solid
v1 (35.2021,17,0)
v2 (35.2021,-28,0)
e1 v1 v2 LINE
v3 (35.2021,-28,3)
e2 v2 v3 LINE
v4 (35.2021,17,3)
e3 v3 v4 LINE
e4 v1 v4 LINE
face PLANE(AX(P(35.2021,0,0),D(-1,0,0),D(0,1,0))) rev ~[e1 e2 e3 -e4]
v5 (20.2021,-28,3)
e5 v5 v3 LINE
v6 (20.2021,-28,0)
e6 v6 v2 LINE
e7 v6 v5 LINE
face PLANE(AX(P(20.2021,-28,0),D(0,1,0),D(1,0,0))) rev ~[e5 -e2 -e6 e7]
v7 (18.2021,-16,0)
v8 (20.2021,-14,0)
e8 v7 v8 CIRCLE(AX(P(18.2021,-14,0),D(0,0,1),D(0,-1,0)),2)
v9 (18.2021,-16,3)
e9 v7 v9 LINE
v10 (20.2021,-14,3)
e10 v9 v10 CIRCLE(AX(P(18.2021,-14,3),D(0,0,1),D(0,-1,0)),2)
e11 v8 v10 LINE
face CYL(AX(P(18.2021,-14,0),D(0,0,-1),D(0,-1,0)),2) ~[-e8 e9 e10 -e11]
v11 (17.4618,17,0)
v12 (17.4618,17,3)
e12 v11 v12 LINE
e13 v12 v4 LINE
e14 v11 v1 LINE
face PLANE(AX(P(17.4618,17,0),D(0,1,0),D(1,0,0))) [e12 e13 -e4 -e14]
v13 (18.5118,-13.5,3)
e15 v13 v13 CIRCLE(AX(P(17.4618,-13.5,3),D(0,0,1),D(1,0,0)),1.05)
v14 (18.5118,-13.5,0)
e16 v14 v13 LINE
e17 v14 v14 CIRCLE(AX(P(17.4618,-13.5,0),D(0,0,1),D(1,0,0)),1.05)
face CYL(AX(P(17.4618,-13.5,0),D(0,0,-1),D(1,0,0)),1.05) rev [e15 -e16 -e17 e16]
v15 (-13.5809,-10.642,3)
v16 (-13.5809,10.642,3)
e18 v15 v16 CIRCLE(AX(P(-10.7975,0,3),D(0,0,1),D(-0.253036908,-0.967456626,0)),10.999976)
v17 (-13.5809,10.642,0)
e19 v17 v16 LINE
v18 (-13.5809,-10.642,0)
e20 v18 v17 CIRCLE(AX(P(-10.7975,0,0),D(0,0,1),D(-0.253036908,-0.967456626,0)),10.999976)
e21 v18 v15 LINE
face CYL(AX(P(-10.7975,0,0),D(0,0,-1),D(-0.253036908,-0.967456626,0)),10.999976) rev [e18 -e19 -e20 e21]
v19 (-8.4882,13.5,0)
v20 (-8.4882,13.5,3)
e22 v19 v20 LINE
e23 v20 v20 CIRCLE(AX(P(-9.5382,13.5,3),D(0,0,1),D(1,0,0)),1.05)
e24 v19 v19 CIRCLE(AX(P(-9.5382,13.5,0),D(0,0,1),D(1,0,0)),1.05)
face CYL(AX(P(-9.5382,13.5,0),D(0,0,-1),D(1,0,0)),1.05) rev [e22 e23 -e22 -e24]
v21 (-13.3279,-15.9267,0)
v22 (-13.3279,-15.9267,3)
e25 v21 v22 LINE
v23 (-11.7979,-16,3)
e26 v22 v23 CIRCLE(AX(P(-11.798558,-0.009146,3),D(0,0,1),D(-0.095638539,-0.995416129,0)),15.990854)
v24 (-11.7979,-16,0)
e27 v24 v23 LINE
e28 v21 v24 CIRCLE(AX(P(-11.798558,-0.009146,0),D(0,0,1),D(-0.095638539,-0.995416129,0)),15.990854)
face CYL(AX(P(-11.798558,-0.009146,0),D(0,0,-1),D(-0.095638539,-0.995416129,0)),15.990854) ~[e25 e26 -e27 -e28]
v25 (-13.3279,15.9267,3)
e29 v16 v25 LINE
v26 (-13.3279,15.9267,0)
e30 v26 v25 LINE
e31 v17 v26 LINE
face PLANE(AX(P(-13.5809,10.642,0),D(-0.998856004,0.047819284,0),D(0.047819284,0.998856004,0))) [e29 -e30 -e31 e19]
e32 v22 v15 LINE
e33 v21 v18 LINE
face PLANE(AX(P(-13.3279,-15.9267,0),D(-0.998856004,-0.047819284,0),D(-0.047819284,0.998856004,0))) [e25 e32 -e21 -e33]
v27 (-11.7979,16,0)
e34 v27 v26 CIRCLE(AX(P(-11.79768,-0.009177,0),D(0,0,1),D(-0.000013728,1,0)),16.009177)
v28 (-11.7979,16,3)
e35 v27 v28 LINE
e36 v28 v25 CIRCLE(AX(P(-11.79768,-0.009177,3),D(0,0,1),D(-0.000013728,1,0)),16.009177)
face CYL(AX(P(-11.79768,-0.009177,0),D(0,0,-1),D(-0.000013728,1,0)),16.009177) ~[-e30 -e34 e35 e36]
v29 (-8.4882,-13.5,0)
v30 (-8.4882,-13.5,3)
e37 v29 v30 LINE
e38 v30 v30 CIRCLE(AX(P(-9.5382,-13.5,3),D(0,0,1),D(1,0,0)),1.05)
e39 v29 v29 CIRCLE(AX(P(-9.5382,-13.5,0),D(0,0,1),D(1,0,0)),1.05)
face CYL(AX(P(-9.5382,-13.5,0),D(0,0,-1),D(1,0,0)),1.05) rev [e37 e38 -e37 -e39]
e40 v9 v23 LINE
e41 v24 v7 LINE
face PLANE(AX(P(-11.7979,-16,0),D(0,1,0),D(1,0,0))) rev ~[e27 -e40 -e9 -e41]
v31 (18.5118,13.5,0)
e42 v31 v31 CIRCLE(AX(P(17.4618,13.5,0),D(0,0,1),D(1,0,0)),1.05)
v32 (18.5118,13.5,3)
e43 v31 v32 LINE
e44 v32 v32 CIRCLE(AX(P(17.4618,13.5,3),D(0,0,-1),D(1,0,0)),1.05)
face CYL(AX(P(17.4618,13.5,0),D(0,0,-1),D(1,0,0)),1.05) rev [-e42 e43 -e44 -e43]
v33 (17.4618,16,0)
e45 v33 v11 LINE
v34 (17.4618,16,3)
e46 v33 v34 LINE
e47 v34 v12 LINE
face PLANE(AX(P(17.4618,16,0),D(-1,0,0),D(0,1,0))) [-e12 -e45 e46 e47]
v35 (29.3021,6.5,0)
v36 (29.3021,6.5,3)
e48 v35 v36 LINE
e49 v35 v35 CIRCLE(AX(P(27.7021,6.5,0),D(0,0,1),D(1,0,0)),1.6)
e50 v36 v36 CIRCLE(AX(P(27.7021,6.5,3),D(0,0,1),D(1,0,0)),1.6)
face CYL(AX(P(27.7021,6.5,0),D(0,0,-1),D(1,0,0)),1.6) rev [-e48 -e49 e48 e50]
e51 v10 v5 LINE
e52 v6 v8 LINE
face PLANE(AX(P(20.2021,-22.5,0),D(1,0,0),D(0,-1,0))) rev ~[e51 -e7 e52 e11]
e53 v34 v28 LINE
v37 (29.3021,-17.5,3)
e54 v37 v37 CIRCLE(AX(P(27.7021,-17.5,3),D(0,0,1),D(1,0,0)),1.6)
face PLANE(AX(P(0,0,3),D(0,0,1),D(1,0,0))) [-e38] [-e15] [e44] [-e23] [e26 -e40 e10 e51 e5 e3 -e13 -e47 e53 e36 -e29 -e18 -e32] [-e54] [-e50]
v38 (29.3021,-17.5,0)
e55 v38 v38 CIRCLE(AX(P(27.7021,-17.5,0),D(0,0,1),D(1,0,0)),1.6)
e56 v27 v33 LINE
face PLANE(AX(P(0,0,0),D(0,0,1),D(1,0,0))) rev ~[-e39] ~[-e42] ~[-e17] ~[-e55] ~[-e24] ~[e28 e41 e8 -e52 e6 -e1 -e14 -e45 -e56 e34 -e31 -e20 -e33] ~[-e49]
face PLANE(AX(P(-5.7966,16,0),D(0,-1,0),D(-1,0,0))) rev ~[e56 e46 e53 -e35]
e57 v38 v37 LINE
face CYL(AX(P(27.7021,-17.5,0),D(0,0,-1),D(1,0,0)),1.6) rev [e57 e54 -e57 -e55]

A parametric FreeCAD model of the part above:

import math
import FreeCAD as App
import Part
import Sketcher
Q = App.Units.Quantity

doc = App.newDocument("Part")
body = doc.addObject("PartDesign::Body", "Body")

sketch1 = doc.addObject("Sketcher::SketchObject", "Sketch")
body.addObject(sketch1)
sketch1.AttachmentSupport = (doc.XY_Plane, [""])
sketch1.MapMode = "FlatFace"
sketch1.addGeometry(Part.ArcOfCircle(Part.Circle(App.Vector(-11.798558, -0.009146, 0), App.Vector(0, 0, 1), 15.990854), math.radians(-95.488073), math.radians(-89.997642)), False)
sketch1.addGeometry(Part.LineSegment(App.Vector(-11.7979, -16, 0), App.Vector(18.2021, -16, 0)), False)
sketch1.addGeometry(Part.ArcOfCircle(Part.Circle(App.Vector(18.2021, -14, 0), App.Vector(0, 0, 1), 2), math.radians(-90), math.radians(0)), False)
sketch1.addGeometry(Part.LineSegment(App.Vector(20.2021, -14, 0), App.Vector(20.2021, -28, 0)), False)
sketch1.addGeometry(Part.LineSegment(App.Vector(20.2021, -28, 0), App.Vector(35.2021, -28, 0)), False)
sketch1.addGeometry(Part.LineSegment(App.Vector(35.2021, -28, 0), App.Vector(35.2021, 17, 0)), False)
sketch1.addGeometry(Part.LineSegment(App.Vector(35.2021, 17, 0), App.Vector(17.4618, 17, 0)), False)
sketch1.addGeometry(Part.LineSegment(App.Vector(17.4618, 17, 0), App.Vector(17.4618, 16, 0)), False)
sketch1.addGeometry(Part.LineSegment(App.Vector(17.4618, 16, 0), App.Vector(-11.7979, 16, 0)), False)
sketch1.addGeometry(Part.ArcOfCircle(Part.Circle(App.Vector(-11.79768, -0.009177, 0), App.Vector(0, 0, 1), 16.009177), math.radians(90.000787), math.radians(95.484928)), False)
sketch1.addGeometry(Part.LineSegment(App.Vector(-13.3279, 15.9267, 0), App.Vector(-13.5809, 10.642, 0)), False)
sketch1.addGeometry(Part.ArcOfCircle(Part.Circle(App.Vector(-10.7975, 0, 0), App.Vector(0, 0, 1), 10.999976), math.radians(-104.657294), math.radians(104.657294)), False)
sketch1.addGeometry(Part.LineSegment(App.Vector(-13.5809, -10.642, 0), App.Vector(-13.3279, -15.9267, 0)), False)
sketch1.addGeometry(Part.Circle(App.Vector(-9.5382, -13.5, 0), App.Vector(0, 0, 1), 1.05), False)
sketch1.addGeometry(Part.Circle(App.Vector(17.4618, -13.5, 0), App.Vector(0, 0, 1), 1.05), False)
sketch1.addGeometry(Part.Circle(App.Vector(-9.5382, 13.5, 0), App.Vector(0, 0, 1), 1.05), False)
sketch1.addGeometry(Part.Circle(App.Vector(17.4618, 13.5, 0), App.Vector(0, 0, 1), 1.05), False)
sketch1.addGeometry(Part.Circle(App.Vector(27.7021, 6.5, 0), App.Vector(0, 0, 1), 1.6), False)
sketch1.addGeometry(Part.Circle(App.Vector(27.7021, -17.5, 0), App.Vector(0, 0, 1), 1.6), False)
sketch1.addConstraint(Sketcher.Constraint("Coincident", 0, 2, 1, 1))
sketch1.addConstraint(Sketcher.Constraint("Coincident", 1, 2, 2, 1))
sketch1.addConstraint(Sketcher.Constraint("Coincident", 2, 2, 3, 1))
sketch1.addConstraint(Sketcher.Constraint("Coincident", 3, 2, 4, 1))
sketch1.addConstraint(Sketcher.Constraint("Coincident", 4, 2, 5, 1))
sketch1.addConstraint(Sketcher.Constraint("Coincident", 5, 2, 6, 1))
sketch1.addConstraint(Sketcher.Constraint("Coincident", 6, 2, 7, 1))
sketch1.addConstraint(Sketcher.Constraint("Coincident", 7, 2, 8, 1))
sketch1.addConstraint(Sketcher.Constraint("Coincident", 8, 2, 9, 1))
sketch1.addConstraint(Sketcher.Constraint("Coincident", 9, 2, 10, 1))
sketch1.addConstraint(Sketcher.Constraint("Coincident", 10, 2, 11, 2))
sketch1.addConstraint(Sketcher.Constraint("Coincident", 11, 1, 12, 1))
sketch1.addConstraint(Sketcher.Constraint("Coincident", 12, 2, 0, 1))
sketch1.addConstraint(Sketcher.Constraint("Horizontal", 1))
sketch1.addConstraint(Sketcher.Constraint("Vertical", 3))
sketch1.addConstraint(Sketcher.Constraint("Horizontal", 4))
sketch1.addConstraint(Sketcher.Constraint("Vertical", 5))
sketch1.addConstraint(Sketcher.Constraint("Horizontal", 6))
sketch1.addConstraint(Sketcher.Constraint("Vertical", 7))
sketch1.addConstraint(Sketcher.Constraint("Horizontal", 8))
sketch1.addConstraint(Sketcher.Constraint("PointOnObject", 11, 3, -1))
sketch1.addConstraint(Sketcher.Constraint("Radius", 11, Q("11 mm")))
sketch1.addConstraint(Sketcher.Constraint("Diameter", 17, Q("3.2 mm")))
sketch1.addConstraint(Sketcher.Constraint("Diameter", 18, Q("3.2 mm")))
sketch1.addConstraint(Sketcher.Constraint("DistanceX", 4, 1, 4, 2, Q("15 mm")))
sketch1.addConstraint(Sketcher.Constraint("DistanceY", 5, 1, 5, 2, Q("45 mm")))
sketch1.addConstraint(Sketcher.Constraint("Radius", 2, Q("2 mm")))
sketch1.addConstraint(Sketcher.Constraint("DistanceY", 3, 2, 1, 2, Q("12 mm")))
sketch1.addConstraint(Sketcher.Constraint("Diameter", 13, Q("2.1 mm")))
sketch1.addConstraint(Sketcher.Constraint("Diameter", 14, Q("2.1 mm")))
sketch1.addConstraint(Sketcher.Constraint("Diameter", 15, Q("2.1 mm")))
sketch1.addConstraint(Sketcher.Constraint("Diameter", 16, Q("2.1 mm")))
sketch1.addConstraint(Sketcher.Constraint("DistanceY", 18, 3, 2, 3, Q("3.5 mm")))
sketch1.addConstraint(Sketcher.Constraint("DistanceY", 18, 3, 2, 2, Q("3.5 mm")))
sketch1.addConstraint(Sketcher.Constraint("DistanceY", 16, 3, 5, 2, Q("3.5 mm")))
sketch1.addConstraint(Sketcher.Constraint("DistanceY", 15, 3, 6, 2, Q("3.5 mm")))
sketch1.addConstraint(Sketcher.Constraint("DistanceX", 1, 1, 1, 2, Q("30 mm")))
sketch1.addConstraint(Sketcher.Constraint("DistanceY", 7, 2, 7, 1, Q("1 mm")))
sketch1.addConstraint(Sketcher.Constraint("DistanceY", 2, 3, -1, 1, Q("14 mm")))
sketch1.addConstraint(Sketcher.Constraint("DistanceX", 13, 3, 14, 3, Q("27 mm")))
sketch1.addConstraint(Sketcher.Constraint("DistanceY", 13, 3, 15, 3, Q("27 mm")))
sketch1.addConstraint(Sketcher.Constraint("DistanceX", 15, 3, 14, 3, Q("27 mm")))
sketch1.addConstraint(Sketcher.Constraint("DistanceY", 14, 3, 15, 3, Q("27 mm")))
sketch1.addConstraint(Sketcher.Constraint("DistanceX", 15, 3, 16, 3, Q("27 mm")))
sketch1.addConstraint(Sketcher.Constraint("DistanceY", 17, 3, 16, 3, Q("7 mm")))
sketch1.addConstraint(Sketcher.Constraint("DistanceX", 1, 2, 2, 2, Q("2 mm")))
sketch1.addConstraint(Sketcher.Constraint("DistanceX", 15, 3, 6, 2, Q("27 mm")))
sketch1.addConstraint(Sketcher.Constraint("Radius", 0, Q("15.9909 mm")))
sketch1.addConstraint(Sketcher.Constraint("Radius", 9, Q("16.0092 mm")))
sketch1.addConstraint(Sketcher.Constraint("DistanceX", 2, 3, 17, 3, Q("9.5 mm")))
sketch1.addConstraint(Sketcher.Constraint("DistanceX", 2, 3, 18, 3, Q("9.5 mm")))
sketch1.addConstraint(Sketcher.Constraint("DistanceX", 14, 3, 2, 2, Q("2.7403 mm")))
sketch1.addConstraint(Sketcher.Constraint("DistanceX", 9, 2, 8, 2, Q("1.53 mm")))
sketch1.addConstraint(Sketcher.Constraint("DistanceX", 12, 2, 0, 2, Q("1.53 mm")))
sketch1.addConstraint(Sketcher.Constraint("DistanceX", 8, 2, 8, 1, Q("29.2597 mm")))
sketch1.addConstraint(Sketcher.Constraint("DistanceX", -1, 1, 2, 3, Q("18.202 mm")))
sketch1.addConstraint(Sketcher.Constraint("DistanceX", 10, 2, -1, 1, Q("13.581 mm")))
sketch1.addConstraint(Sketcher.Constraint("DistanceY", -1, 1, 10, 2, Q("10.642 mm")))
sketch1.addConstraint(Sketcher.Constraint("DistanceX", 11, 1, -1, 1, Q("13.581 mm")))
sketch1.addConstraint(Sketcher.Constraint("DistanceX", 0, 3, 11, 3, Q("1.001 mm")))
sketch1.addConstraint(Sketcher.Constraint("Distance", 10, Q("5.2908 mm")))
pad1 = doc.addObject("PartDesign::Pad", "Pad")
body.addObject(pad1)
pad1.Profile = sketch1
pad1.Length = 3

doc.recompute()
